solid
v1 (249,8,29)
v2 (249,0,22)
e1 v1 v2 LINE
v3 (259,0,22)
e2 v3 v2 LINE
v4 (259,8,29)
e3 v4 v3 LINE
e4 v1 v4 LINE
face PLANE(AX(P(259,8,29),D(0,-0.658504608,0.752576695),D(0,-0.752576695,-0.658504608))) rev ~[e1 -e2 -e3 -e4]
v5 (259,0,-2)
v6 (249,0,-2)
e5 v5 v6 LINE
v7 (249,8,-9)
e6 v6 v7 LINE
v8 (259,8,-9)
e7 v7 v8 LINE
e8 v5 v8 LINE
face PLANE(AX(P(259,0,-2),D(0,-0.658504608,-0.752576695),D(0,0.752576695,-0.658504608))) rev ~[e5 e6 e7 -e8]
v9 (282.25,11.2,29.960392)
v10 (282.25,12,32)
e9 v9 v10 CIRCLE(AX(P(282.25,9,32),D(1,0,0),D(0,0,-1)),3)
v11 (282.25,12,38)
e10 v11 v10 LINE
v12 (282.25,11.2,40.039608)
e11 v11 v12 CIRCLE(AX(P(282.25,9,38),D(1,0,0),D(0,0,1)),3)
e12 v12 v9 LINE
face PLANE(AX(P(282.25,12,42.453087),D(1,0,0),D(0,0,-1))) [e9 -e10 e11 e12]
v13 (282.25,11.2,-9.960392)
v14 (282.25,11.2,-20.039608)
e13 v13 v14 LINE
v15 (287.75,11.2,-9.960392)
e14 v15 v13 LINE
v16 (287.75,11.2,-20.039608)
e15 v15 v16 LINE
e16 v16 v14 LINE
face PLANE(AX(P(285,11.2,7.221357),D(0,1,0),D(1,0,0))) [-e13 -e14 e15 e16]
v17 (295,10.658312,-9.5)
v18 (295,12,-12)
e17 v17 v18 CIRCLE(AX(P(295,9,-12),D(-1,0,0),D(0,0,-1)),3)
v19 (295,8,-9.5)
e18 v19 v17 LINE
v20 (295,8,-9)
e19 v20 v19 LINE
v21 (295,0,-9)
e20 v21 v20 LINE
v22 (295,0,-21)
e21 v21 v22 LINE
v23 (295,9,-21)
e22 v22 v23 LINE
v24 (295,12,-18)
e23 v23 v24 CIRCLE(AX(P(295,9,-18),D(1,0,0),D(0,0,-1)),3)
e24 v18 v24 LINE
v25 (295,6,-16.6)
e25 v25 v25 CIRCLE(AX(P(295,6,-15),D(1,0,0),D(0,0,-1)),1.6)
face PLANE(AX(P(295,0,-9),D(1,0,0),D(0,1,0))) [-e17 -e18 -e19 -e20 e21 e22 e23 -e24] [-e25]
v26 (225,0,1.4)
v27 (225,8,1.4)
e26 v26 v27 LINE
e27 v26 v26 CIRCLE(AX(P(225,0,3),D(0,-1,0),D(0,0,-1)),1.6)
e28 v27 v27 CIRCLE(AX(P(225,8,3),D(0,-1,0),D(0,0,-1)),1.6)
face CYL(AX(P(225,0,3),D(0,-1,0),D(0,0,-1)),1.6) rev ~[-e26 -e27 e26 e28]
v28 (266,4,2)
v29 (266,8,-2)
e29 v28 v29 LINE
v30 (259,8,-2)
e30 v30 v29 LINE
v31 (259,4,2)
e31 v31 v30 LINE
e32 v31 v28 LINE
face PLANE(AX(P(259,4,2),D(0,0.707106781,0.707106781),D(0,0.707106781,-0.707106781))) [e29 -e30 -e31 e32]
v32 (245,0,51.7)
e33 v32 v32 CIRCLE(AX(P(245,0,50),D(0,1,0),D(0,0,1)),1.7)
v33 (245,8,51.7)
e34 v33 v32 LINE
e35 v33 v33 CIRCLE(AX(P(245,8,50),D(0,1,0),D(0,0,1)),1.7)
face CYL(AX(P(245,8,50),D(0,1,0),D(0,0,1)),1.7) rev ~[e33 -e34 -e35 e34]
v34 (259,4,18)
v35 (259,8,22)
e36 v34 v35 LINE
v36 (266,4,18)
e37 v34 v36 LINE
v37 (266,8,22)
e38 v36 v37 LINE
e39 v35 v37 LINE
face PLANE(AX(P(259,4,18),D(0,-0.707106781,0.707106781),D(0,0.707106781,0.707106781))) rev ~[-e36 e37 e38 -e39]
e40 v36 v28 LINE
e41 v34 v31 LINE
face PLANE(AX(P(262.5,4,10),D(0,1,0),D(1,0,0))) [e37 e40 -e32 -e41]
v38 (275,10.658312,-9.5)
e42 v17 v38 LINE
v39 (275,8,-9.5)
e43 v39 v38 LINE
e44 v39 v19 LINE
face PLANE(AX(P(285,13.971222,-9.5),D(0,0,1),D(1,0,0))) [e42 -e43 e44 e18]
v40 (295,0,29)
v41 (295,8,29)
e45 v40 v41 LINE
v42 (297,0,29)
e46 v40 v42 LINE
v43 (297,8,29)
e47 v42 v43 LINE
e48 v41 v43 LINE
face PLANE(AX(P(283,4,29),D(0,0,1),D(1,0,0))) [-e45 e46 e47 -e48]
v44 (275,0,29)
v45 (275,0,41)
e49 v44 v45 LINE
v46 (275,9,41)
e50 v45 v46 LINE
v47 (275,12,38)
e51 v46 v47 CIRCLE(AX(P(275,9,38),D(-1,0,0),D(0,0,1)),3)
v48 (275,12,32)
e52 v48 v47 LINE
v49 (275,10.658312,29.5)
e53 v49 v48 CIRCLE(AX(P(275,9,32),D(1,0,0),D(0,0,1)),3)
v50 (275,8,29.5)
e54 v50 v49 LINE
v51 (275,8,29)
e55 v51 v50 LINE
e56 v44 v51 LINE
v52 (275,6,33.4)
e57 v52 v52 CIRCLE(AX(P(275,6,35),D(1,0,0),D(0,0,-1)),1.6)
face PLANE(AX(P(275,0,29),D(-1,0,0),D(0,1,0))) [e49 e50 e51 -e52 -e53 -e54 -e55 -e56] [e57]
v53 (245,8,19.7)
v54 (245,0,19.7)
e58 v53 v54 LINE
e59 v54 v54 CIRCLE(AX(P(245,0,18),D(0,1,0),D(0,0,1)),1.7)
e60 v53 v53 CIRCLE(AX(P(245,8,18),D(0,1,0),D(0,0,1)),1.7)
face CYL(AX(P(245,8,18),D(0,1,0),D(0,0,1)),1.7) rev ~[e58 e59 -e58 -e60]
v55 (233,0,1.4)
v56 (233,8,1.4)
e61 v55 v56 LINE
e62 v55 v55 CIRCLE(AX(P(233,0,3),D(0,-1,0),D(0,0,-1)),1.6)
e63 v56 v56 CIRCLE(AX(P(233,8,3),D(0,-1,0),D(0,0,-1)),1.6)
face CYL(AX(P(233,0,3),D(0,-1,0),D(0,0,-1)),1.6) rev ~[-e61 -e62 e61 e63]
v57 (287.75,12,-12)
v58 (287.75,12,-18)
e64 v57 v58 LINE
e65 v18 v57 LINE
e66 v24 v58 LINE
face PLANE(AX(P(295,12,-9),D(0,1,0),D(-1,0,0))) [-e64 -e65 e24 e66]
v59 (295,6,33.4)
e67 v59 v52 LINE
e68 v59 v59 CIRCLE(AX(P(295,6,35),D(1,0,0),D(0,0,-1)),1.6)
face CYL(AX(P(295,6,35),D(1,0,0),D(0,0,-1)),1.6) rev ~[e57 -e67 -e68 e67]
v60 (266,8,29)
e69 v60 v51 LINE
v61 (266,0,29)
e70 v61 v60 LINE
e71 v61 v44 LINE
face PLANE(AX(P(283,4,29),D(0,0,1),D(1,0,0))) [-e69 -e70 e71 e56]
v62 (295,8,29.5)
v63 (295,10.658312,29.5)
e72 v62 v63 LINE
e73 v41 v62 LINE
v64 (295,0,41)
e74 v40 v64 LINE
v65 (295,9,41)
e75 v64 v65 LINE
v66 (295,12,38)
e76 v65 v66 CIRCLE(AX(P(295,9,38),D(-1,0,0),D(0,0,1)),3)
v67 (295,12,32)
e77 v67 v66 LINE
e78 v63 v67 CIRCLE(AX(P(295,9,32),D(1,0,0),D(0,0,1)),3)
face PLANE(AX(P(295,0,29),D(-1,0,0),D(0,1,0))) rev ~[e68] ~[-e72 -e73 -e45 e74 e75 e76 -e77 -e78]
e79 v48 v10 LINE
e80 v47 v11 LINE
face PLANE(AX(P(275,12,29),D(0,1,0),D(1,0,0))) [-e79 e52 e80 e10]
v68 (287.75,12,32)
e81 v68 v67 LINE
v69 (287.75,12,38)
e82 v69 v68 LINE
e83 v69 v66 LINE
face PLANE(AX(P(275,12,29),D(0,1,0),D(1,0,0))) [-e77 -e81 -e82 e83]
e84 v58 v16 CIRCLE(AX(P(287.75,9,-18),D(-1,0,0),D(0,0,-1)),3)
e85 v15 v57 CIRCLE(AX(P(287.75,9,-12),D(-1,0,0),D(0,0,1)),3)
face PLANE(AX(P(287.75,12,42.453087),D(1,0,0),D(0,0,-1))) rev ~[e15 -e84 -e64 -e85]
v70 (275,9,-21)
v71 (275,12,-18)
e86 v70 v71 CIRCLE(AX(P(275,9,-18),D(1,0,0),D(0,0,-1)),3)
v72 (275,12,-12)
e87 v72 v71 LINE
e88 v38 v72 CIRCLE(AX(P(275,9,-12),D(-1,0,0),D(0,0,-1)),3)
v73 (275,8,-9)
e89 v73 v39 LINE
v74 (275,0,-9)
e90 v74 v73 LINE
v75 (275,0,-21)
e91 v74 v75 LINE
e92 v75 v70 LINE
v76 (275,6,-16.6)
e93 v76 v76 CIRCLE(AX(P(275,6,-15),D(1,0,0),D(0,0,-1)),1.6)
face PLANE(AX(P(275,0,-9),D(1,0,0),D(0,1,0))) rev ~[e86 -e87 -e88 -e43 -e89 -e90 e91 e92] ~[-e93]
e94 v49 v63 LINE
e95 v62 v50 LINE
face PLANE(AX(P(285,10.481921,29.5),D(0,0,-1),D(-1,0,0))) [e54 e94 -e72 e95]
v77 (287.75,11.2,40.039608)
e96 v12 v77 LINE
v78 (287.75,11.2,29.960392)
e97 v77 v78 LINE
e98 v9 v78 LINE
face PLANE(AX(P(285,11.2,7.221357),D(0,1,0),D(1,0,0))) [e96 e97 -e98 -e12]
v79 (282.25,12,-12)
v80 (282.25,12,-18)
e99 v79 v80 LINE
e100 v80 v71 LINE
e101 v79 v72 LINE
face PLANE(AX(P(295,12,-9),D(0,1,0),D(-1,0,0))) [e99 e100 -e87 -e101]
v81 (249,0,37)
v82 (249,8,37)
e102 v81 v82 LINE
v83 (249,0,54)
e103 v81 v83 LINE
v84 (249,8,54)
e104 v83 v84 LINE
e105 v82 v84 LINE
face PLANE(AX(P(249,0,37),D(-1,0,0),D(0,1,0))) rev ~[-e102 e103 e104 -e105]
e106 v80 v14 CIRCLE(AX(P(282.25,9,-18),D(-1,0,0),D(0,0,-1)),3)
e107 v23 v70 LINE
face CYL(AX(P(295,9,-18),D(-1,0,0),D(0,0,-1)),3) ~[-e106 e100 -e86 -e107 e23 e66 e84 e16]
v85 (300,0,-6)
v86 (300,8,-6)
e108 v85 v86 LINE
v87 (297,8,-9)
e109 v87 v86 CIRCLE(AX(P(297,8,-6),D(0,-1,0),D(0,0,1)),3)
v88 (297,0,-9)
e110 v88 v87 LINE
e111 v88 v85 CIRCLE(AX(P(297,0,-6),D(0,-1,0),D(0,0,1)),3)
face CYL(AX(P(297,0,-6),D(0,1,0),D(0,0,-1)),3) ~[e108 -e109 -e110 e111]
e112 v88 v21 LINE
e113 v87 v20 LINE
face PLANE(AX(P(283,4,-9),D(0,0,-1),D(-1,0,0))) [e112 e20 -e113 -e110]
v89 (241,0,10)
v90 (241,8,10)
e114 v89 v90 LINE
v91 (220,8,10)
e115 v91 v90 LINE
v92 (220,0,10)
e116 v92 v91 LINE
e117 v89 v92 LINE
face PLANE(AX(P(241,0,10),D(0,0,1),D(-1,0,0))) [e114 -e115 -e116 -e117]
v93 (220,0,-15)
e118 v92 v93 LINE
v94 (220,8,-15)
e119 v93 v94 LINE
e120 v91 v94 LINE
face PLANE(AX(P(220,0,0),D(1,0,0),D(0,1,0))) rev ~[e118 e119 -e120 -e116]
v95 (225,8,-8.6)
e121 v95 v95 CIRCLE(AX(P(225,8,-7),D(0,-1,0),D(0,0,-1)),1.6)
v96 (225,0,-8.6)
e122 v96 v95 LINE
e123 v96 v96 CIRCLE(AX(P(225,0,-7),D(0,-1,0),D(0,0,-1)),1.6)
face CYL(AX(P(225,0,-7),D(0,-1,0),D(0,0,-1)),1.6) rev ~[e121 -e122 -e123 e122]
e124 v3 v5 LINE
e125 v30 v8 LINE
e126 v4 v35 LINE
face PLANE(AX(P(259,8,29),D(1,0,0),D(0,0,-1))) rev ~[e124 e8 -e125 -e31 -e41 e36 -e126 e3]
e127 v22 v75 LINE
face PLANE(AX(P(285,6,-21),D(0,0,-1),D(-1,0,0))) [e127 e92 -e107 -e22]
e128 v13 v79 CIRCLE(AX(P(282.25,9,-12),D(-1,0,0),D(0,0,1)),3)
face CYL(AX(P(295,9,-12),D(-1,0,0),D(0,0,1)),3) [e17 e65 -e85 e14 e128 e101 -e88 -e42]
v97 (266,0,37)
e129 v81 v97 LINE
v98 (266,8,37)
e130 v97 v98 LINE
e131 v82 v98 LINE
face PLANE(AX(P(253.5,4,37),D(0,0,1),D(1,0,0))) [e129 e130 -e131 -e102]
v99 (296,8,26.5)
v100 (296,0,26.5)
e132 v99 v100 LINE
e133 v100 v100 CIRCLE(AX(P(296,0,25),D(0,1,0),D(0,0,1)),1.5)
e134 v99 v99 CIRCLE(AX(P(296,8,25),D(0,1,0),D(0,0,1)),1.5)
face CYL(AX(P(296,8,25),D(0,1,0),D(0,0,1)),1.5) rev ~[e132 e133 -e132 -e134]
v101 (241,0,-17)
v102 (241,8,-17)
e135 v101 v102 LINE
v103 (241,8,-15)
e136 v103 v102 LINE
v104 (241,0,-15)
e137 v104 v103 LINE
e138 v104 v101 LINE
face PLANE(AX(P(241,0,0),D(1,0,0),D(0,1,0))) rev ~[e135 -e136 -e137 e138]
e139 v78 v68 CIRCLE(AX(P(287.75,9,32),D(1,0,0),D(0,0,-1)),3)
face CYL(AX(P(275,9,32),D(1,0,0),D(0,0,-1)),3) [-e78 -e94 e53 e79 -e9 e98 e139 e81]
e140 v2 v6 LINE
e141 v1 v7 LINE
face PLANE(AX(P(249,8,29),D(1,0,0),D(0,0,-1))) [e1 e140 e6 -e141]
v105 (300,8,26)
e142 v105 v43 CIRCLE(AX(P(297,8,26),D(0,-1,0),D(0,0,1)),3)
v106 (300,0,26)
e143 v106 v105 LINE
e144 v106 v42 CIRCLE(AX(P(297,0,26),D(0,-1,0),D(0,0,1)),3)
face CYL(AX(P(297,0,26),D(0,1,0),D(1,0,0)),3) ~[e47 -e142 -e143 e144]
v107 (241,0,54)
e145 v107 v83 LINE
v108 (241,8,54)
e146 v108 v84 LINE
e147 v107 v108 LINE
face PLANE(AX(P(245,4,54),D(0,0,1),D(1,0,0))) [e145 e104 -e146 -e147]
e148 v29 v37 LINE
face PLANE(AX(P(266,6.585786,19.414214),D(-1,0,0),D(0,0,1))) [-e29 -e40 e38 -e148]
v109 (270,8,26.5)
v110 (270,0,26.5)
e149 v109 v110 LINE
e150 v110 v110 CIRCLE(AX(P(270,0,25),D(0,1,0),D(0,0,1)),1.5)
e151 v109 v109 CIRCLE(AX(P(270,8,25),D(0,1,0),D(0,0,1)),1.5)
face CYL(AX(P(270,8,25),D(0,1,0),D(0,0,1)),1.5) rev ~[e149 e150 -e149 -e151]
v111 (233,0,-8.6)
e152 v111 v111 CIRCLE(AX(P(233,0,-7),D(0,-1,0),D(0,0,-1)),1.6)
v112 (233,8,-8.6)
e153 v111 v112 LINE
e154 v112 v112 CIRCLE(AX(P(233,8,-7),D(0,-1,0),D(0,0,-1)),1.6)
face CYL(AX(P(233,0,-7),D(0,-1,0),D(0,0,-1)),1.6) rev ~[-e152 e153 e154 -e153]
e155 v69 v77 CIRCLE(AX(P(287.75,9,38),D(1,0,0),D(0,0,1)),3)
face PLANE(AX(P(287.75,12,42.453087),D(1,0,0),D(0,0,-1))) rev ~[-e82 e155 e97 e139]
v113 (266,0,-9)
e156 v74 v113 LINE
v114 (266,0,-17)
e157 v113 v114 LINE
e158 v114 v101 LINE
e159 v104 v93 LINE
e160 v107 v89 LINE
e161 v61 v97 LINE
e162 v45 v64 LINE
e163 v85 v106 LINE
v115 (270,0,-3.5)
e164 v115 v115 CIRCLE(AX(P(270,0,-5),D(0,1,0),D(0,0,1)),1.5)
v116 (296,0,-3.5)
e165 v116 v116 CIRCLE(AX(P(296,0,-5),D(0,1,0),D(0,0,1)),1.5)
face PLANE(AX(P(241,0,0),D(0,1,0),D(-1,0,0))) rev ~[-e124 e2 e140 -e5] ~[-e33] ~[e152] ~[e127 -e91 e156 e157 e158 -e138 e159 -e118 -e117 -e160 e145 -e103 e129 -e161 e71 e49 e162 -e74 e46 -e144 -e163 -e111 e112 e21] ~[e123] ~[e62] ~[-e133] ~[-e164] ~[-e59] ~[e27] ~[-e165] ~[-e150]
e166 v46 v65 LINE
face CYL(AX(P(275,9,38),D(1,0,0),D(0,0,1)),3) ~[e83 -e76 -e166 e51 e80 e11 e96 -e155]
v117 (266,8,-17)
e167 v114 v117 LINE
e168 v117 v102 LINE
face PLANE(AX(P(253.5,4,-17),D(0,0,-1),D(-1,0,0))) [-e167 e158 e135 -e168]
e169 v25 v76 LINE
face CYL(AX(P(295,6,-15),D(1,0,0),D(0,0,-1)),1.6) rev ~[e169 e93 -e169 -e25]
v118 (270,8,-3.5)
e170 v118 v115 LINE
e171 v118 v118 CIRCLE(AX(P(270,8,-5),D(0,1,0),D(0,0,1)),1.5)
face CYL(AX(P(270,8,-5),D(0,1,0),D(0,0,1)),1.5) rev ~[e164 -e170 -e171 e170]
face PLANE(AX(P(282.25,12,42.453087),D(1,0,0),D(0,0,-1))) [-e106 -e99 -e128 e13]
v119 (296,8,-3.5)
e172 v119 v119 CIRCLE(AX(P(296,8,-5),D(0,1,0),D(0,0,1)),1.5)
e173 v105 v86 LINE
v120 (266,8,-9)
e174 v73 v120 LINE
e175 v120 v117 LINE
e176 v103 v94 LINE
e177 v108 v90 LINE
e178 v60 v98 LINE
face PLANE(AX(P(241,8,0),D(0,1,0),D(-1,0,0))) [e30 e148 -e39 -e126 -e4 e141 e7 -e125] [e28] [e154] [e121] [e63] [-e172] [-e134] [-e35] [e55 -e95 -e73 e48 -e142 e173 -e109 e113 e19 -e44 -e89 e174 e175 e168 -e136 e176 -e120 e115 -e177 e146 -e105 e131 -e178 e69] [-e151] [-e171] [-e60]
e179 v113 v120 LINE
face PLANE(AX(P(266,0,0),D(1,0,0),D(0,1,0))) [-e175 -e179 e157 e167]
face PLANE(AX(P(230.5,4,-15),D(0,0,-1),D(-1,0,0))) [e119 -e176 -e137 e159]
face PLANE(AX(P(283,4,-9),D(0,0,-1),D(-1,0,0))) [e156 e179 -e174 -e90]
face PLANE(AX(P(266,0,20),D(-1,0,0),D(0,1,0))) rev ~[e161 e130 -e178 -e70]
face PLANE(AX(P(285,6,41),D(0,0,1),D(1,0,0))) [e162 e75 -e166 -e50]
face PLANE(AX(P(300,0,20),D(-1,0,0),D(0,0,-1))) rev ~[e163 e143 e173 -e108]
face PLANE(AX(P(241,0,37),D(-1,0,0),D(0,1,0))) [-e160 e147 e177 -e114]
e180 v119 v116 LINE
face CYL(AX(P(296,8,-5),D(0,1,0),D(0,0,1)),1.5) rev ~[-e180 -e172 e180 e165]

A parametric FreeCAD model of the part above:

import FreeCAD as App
import Part
import Sketcher
from FreeCAD import Vector
Q = App.Units.Quantity


def edges_at(feature, points):
    """Names of the edges that pass closest to the given points."""
    edges = feature.Shape.Edges
    near = lambda p: min(range(len(edges)), key=lambda i: edges[i].distToShape(Part.Vertex(*p))[0])
    return sorted({f"Edge{near(p) + 1}" for p in points})


def add_polygon(sketch, points):
    """Adds a closed chain of lines whose ends are joined by coincident constraints."""
    first, n = sketch.GeometryCount, len(points)
    for a, b in zip(points, points[1:] + points[:1]):
        sketch.addGeometry(Part.LineSegment(App.Vector(*a, 0), App.Vector(*b, 0)), False)
    for i in range(n):
        sketch.addConstraint(Sketcher.Constraint("Coincident", first + i, 2, first + (i + 1) % n, 1))

doc = App.newDocument("Part")
body = doc.addObject("PartDesign::Body", "Body")

sketch1 = body.newObject("Sketcher::SketchObject", "Sketch")
sketch1.AttachmentSupport = (doc.getObject("XZ_Plane"), [""])
sketch1.MapMode = "FlatFace"
add_polygon(sketch1, [(0, 0), (0, 20), (300, 20), (300, 0)])
sketch1.addConstraint(Sketcher.Constraint("Vertical", 0))
sketch1.addConstraint(Sketcher.Constraint("Horizontal", 1))
sketch1.addConstraint(Sketcher.Constraint("Vertical", 2))
sketch1.addConstraint(Sketcher.Constraint("Horizontal", 3))
sketch1.addConstraint(Sketcher.Constraint("Coincident", 3, 2, -1, 1))
sketch1.addConstraint(Sketcher.Constraint("DistanceX", 1, 1, 1, 2, Q("300 mm")))
sketch1.addConstraint(Sketcher.Constraint("DistanceY", 0, 1, 0, 2, Q("20 mm")))
pad1 = body.newObject("PartDesign::Pad", "Pad")
pad1.Profile = sketch1
pad1.Length = 8
pad1.Reversed = True

sketch2 = body.newObject("Sketcher::SketchObject", "Sketch001")
sketch2.AttachmentSupport = (doc.getObject("XY_Plane"), [""])
sketch2.MapMode = "FlatFace"
sketch2.AttachmentOffset = App.Placement(Vector(0, 0, 20), App.Rotation())
add_polygon(sketch2, [(0, 8), (0, 0), (34, 0), (34, 8)])
add_polygon(sketch2, [(266, 8), (266, 0), (300, 0), (300, 8)])
sketch2.addConstraint(Sketcher.Constraint("Vertical", 0))
sketch2.addConstraint(Sketcher.Constraint("Horizontal", 1))
sketch2.addConstraint(Sketcher.Constraint("Vertical", 2))
sketch2.addConstraint(Sketcher.Constraint("Horizontal", 3))
sketch2.addConstraint(Sketcher.Constraint("Vertical", 4))
sketch2.addConstraint(Sketcher.Constraint("Horizontal", 5))
sketch2.addConstraint(Sketcher.Constraint("Vertical", 6))
sketch2.addConstraint(Sketcher.Constraint("Horizontal", 7))
sketch2.addConstraint(Sketcher.Constraint("Coincident", 0, 2, -1, 1))
sketch2.addConstraint(Sketcher.Constraint("PointOnObject", 4, 2, -1))
sketch2.addConstraint(Sketcher.Constraint("Horizontal", 3, 2, 6, 2))
sketch2.addConstraint(Sketcher.Constraint("Equal", 3, 5))
sketch2.addConstraint(Sketcher.Constraint("DistanceX", 1, 1, 1, 2, Q("34 mm")))
sketch2.addConstraint(Sketcher.Constraint("DistanceY", 0, 2, 0, 1, Q("8 mm")))
sketch2.addConstraint(Sketcher.Constraint("DistanceX", -1, 1, 4, 2, Q("266 mm")))
pad2 = body.newObject("PartDesign::Pad", "Pad001")
pad2.Profile = sketch2
pad2.Length = 9

sketch3 = body.newObject("Sketcher::SketchObject", "Sketch002")
sketch3.AttachmentSupport = (doc.getObject("XY_Plane"), [""])
sketch3.MapMode = "FlatFace"
add_polygon(sketch3, [(34, 8), (34, 0), (0, 0), (0, 8)])
add_polygon(sketch3, [(300, 8), (300, 0), (266, 0), (266, 8)])
sketch3.addConstraint(Sketcher.Constraint("Vertical", 0))
sketch3.addConstraint(Sketcher.Constraint("Horizontal", 1))
sketch3.addConstraint(Sketcher.Constraint("Vertical", 2))
sketch3.addConstraint(Sketcher.Constraint("Horizontal", 3))
sketch3.addConstraint(Sketcher.Constraint("Vertical", 4))
sketch3.addConstraint(Sketcher.Constraint("Horizontal", 5))
sketch3.addConstraint(Sketcher.Constraint("Vertical", 6))
sketch3.addConstraint(Sketcher.Constraint("Horizontal", 7))
sketch3.addConstraint(Sketcher.Constraint("Coincident", 1, 2, -1, 1))
sketch3.addConstraint(Sketcher.Constraint("PointOnObject", 4, 2, -1))
sketch3.addConstraint(Sketcher.Constraint("Horizontal", 3, 2, 6, 2))
sketch3.addConstraint(Sketcher.Constraint("Equal", 3, 5))
sketch3.addConstraint(Sketcher.Constraint("DistanceX", 1, 2, 1, 1, Q("34 mm")))
sketch3.addConstraint(Sketcher.Constraint("DistanceY", 0, 2, 0, 1, Q("8 mm")))
sketch3.addConstraint(Sketcher.Constraint("DistanceX", -1, 1, 4, 2, Q("300 mm")))
pad3 = body.newObject("PartDesign::Pad", "Pad002")
pad3.Profile = sketch3
pad3.Length = 9
pad3.Reversed = True

sketch4 = body.newObject("Sketcher::SketchObject", "Sketch003")
sketch4.AttachmentSupport = (doc.getObject("XZ_Plane"), [""])
sketch4.MapMode = "FlatFace"
sketch4.AttachmentOffset = App.Placement(Vector(0, 0, -8), App.Rotation())
sketch4.addGeometry(Part.Circle(Vector(4, -5, 0), Vector(0, 0, 1), 1.5), False)
sketch4.addGeometry(Part.Circle(Vector(30, -5, 0), Vector(0, 0, 1), 1.5), False)
sketch4.addGeometry(Part.Circle(Vector(30, 25, 0), Vector(0, 0, 1), 1.5), False)
sketch4.addGeometry(Part.Circle(Vector(4, 25, 0), Vector(0, 0, 1), 1.5), False)
sketch4.addGeometry(Part.Circle(Vector(296, 25, 0), Vector(0, 0, 1), 1.5), False)
sketch4.addGeometry(Part.Circle(Vector(296, -5, 0), Vector(0, 0, 1), 1.5), False)
sketch4.addGeometry(Part.Circle(Vector(270, 25, 0), Vector(0, 0, 1), 1.5), False)
sketch4.addGeometry(Part.Circle(Vector(270, -5, 0), Vector(0, 0, 1), 1.5), False)
sketch4.addConstraint(Sketcher.Constraint("Equal", 0, 1))
sketch4.addConstraint(Sketcher.Constraint("Equal", 1, 2))
sketch4.addConstraint(Sketcher.Constraint("Equal", 2, 3))
sketch4.addConstraint(Sketcher.Constraint("Equal", 3, 4))
sketch4.addConstraint(Sketcher.Constraint("Equal", 4, 5))
sketch4.addConstraint(Sketcher.Constraint("Equal", 5, 6))
sketch4.addConstraint(Sketcher.Constraint("Equal", 6, 7))
sketch4.addConstraint(Sketcher.Constraint("Horizontal", 0, 3, 1, 3))
sketch4.addConstraint(Sketcher.Constraint("Horizontal", 2, 3, 3, 3))
sketch4.addConstraint(Sketcher.Constraint("Horizontal", 3, 3, 4, 3))
sketch4.addConstraint(Sketcher.Constraint("Horizontal", 1, 3, 5, 3))
sketch4.addConstraint(Sketcher.Constraint("Horizontal", 4, 3, 6, 3))
sketch4.addConstraint(Sketcher.Constraint("Horizontal", 5, 3, 7, 3))
sketch4.addConstraint(Sketcher.Constraint("Vertical", 1, 3, 2, 3))
sketch4.addConstraint(Sketcher.Constraint("Vertical", 0, 3, 3, 3))
sketch4.addConstraint(Sketcher.Constraint("Vertical", 4, 3, 5, 3))
sketch4.addConstraint(Sketcher.Constraint("Vertical", 6, 3, 7, 3))
sketch4.addConstraint(Sketcher.Constraint("Diameter", 0, Q("3 mm")))
sketch4.addConstraint(Sketcher.Constraint("DistanceX", -1, 1, 0, 3, Q("4 mm")))
sketch4.addConstraint(Sketcher.Constraint("DistanceY", 0, 3, -1, 1, Q("5 mm")))
sketch4.addConstraint(Sketcher.Constraint("DistanceX", -1, 1, 1, 3, Q("30 mm")))
sketch4.addConstraint(Sketcher.Constraint("DistanceY", -1, 1, 2, 3, Q("25 mm")))
sketch4.addConstraint(Sketcher.Constraint("DistanceX", -1, 1, 4, 3, Q("296 mm")))
sketch4.addConstraint(Sketcher.Constraint("DistanceX", -1, 1, 6, 3, Q("270 mm")))
pocket1 = body.newObject("PartDesign::Pocket", "Pocket")
pocket1.Profile = sketch4
pocket1.Type = "ThroughAll"
pocket1.Reversed = True

sketch5 = body.newObject("Sketcher::SketchObject", "Sketch004")
sketch5.AttachmentSupport = (doc.getObject("XY_Plane"), [""])
sketch5.MapMode = "FlatFace"
sketch5.AttachmentOffset = App.Placement(Vector(0, 0, 20), App.Rotation())
add_polygon(sketch5, [(241, 8), (241, 0), (266, 0), (266, 8)])
sketch5.addConstraint(Sketcher.Constraint("Vertical", 0))
sketch5.addConstraint(Sketcher.Constraint("Horizontal", 1))
sketch5.addConstraint(Sketcher.Constraint("Vertical", 2))
sketch5.addConstraint(Sketcher.Constraint("Horizontal", 3))
sketch5.addConstraint(Sketcher.Constraint("PointOnObject", 0, 2, -1))
sketch5.addConstraint(Sketcher.Constraint("DistanceX", 1, 1, 1, 2, Q("25 mm")))
sketch5.addConstraint(Sketcher.Constraint("DistanceY", 0, 2, 0, 1, Q("8 mm")))
sketch5.addConstraint(Sketcher.Constraint("DistanceX", -1, 1, 0, 2, Q("241 mm")))
pad4 = body.newObject("PartDesign::Pad", "Pad003")
pad4.Profile = sketch5
pad4.Length = 17

sketch6 = body.newObject("Sketcher::SketchObject", "Sketch005")
sketch6.AttachmentSupport = (doc.getObject("XY_Plane"), [""])
sketch6.MapMode = "FlatFace"
add_polygon(sketch6, [(266, 8), (266, 0), (241, 0), (241, 8)])
sketch6.addConstraint(Sketcher.Constraint("Vertical", 0))
sketch6.addConstraint(Sketcher.Constraint("Horizontal", 1))
sketch6.addConstraint(Sketcher.Constraint("Vertical", 2))
sketch6.addConstraint(Sketcher.Constraint("Horizontal", 3))
sketch6.addConstraint(Sketcher.Constraint("PointOnObject", 0, 2, -1))
sketch6.addConstraint(Sketcher.Constraint("DistanceX", 1, 2, 1, 1, Q("25 mm")))
sketch6.addConstraint(Sketcher.Constraint("DistanceY", 0, 2, 0, 1, Q("8 mm")))
sketch6.addConstraint(Sketcher.Constraint("DistanceX", -1, 1, 0, 2, Q("266 mm")))
pad5 = body.newObject("PartDesign::Pad", "Pad004")
pad5.Profile = sketch6
pad5.Length = 17
pad5.Reversed = True

sketch7 = body.newObject("Sketcher::SketchObject", "Sketch006")
sketch7.AttachmentSupport = (doc.getObject("XZ_Plane"), [""])
sketch7.MapMode = "FlatFace"
sketch7.AttachmentOffset = App.Placement(Vector(0, 0, -8), App.Rotation())
add_polygon(sketch7, [(249, -9), (249, 29), (259, 29), (259, -9)])
sketch7.addConstraint(Sketcher.Constraint("Vertical", 0))
sketch7.addConstraint(Sketcher.Constraint("Horizontal", 1))
sketch7.addConstraint(Sketcher.Constraint("Vertical", 2))
sketch7.addConstraint(Sketcher.Constraint("Horizontal", 3))
sketch7.addConstraint(Sketcher.Constraint("DistanceX", 1, 1, 1, 2, Q("10 mm")))
sketch7.addConstraint(Sketcher.Constraint("DistanceY", 0, 1, 0, 2, Q("38 mm")))
sketch7.addConstraint(Sketcher.Constraint("DistanceX", -1, 1, 0, 2, Q("249 mm")))
sketch7.addConstraint(Sketcher.Constraint("DistanceY", -1, 1, 0, 2, Q("29 mm")))
pocket2 = body.newObject("PartDesign::Pocket", "Pocket001")
pocket2.Profile = sketch7
pocket2.Type = "ThroughAll"
pocket2.Reversed = True

sketch8 = body.newObject("Sketcher::SketchObject", "Sketch007")
sketch8.AttachmentSupport = (doc.getObject("XZ_Plane"), [""])
sketch8.MapMode = "FlatFace"
sketch8.AttachmentOffset = App.Placement(Vector(0, 0, -8), App.Rotation())
add_polygon(sketch8, [(259, 2), (259, 18), (266, 18), (266, 2)])
sketch8.addConstraint(Sketcher.Constraint("Vertical", 0))
sketch8.addConstraint(Sketcher.Constraint("Horizontal", 1))
sketch8.addConstraint(Sketcher.Constraint("Vertical", 2))
sketch8.addConstraint(Sketcher.Constraint("Horizontal", 3))
sketch8.addConstraint(Sketcher.Constraint("DistanceX", 1, 1, 1, 2, Q("7 mm")))
sketch8.addConstraint(Sketcher.Constraint("DistanceY", 0, 1, 0, 2, Q("16 mm")))
sketch8.addConstraint(Sketcher.Constraint("DistanceX", -1, 1, 0, 2, Q("259 mm")))
sketch8.addConstraint(Sketcher.Constraint("DistanceY", -1, 1, 0, 2, Q("18 mm")))
pocket3 = body.newObject("PartDesign::Pocket", "Pocket002")
pocket3.Profile = sketch8
pocket3.Length = 4
pocket3.Reversed = True

sketch9 = body.newObject("Sketcher::SketchObject", "Sketch008")
sketch9.AttachmentSupport = (doc.getObject("YZ_Plane"), [""])
sketch9.MapMode = "FlatFace"
sketch9.AttachmentOffset = App.Placement(Vector(0, 0, 259), App.Rotation())
add_polygon(sketch9, [(4, 18), (8, 22), (8, 18)])
add_polygon(sketch9, [(8, -2), (4, 2), (8, 2)])
sketch9.addConstraint(Sketcher.Constraint("Vertical", 1))
sketch9.addConstraint(Sketcher.Constraint("Horizontal", 2))
sketch9.addConstraint(Sketcher.Constraint("Horizontal", 4))
sketch9.addConstraint(Sketcher.Constraint("Vertical", 5))
sketch9.addConstraint(Sketcher.Constraint("Perpendicular", 0, 3))
sketch9.addConstraint(Sketcher.Constraint("Vertical", 2, 2, 3, 2))
sketch9.addConstraint(Sketcher.Constraint("Vertical", 1, 2, 4, 2))
sketch9.addConstraint(Sketcher.Constraint("Equal", 4, 1))
sketch9.addConstraint(Sketcher.Constraint("DistanceX", 2, 2, 2, 1, Q("4 mm")))
sketch9.addConstraint(Sketcher.Constraint("DistanceX", -1, 1, 0, 2, Q("8 mm")))
sketch9.addConstraint(Sketcher.Constraint("DistanceY", -1, 1, 0, 2, Q("22 mm")))
sketch9.addConstraint(Sketcher.Constraint("DistanceY", -1, 1, 3, 2, Q("2 mm")))
pocket4 = body.newObject("PartDesign::Pocket", "Pocket003")
pocket4.Profile = sketch9
pocket4.Length = 7
pocket4.Reversed = True

sketch10 = body.newObject("Sketcher::SketchObject", "Sketch009")
sketch10.AttachmentSupport = (doc.getObject("YZ_Plane"), [""])
sketch10.MapMode = "FlatFace"
sketch10.AttachmentOffset = App.Placement(Vector(0, 0, 259), App.Rotation())
add_polygon(sketch10, [(0, -2), (8, -9), (0, -9)])
add_polygon(sketch10, [(8, 29), (0, 22), (0, 29)])
sketch10.addConstraint(Sketcher.Constraint("Horizontal", 1))
sketch10.addConstraint(Sketcher.Constraint("Vertical", 2))
sketch10.addConstraint(Sketcher.Constraint("Vertical", 4))
sketch10.addConstraint(Sketcher.Constraint("Horizontal", 5))
sketch10.addConstraint(Sketcher.Constraint("PointOnObject", 1, 2, -2))
sketch10.addConstraint(Sketcher.Constraint("PointOnObject", 3, 2, -2))
sketch10.addConstraint(Sketcher.Constraint("Vertical", 0, 2, 5, 2))
sketch10.addConstraint(Sketcher.Constraint("Equal", 2, 4))
sketch10.addConstraint(Sketcher.Constraint("DistanceX", 1, 2, 1, 1, Q("8 mm")))
sketch10.addConstraint(Sketcher.Constraint("DistanceY", 2, 1, 2, 2, Q("7 mm")))
sketch10.addConstraint(Sketcher.Constraint("DistanceY", 0, 2, -1, 1, Q("9 mm")))
sketch10.addConstraint(Sketcher.Constraint("DistanceY", -1, 1, 3, 2, Q("22 mm")))
pad6 = body.newObject("PartDesign::Pad", "Pad005")
pad6.Profile = sketch10
pad6.Length = 10
pad6.Reversed = True

sketch11 = body.newObject("Sketcher::SketchObject", "Sketch010")
sketch11.AttachmentSupport = (doc.getObject("XY_Plane"), [""])
sketch11.MapMode = "FlatFace"
sketch11.AttachmentOffset = App.Placement(Vector(0, 0, 37), App.Rotation())
add_polygon(sketch11, [(241, 8), (241, 0), (249, 0), (249, 8)])
sketch11.addConstraint(Sketcher.Constraint("Vertical", 0))
sketch11.addConstraint(Sketcher.Constraint("Horizontal", 1))
sketch11.addConstraint(Sketcher.Constraint("Vertical", 2))
sketch11.addConstraint(Sketcher.Constraint("Horizontal", 3))
sketch11.addConstraint(Sketcher.Constraint("PointOnObject", 0, 2, -1))
sketch11.addConstraint(Sketcher.Constraint("Equal", 3, 0))
sketch11.addConstraint(Sketcher.Constraint("DistanceX", 1, 1, 1, 2, Q("8 mm")))
sketch11.addConstraint(Sketcher.Constraint("DistanceX", -1, 1, 0, 2, Q("241 mm")))
pad7 = body.newObject("PartDesign::Pad", "Pad006")
pad7.Profile = sketch11
pad7.Length = 17

sketch12 = body.newObject("Sketcher::SketchObject", "Sketch011")
sketch12.AttachmentSupport = (doc.getObject("XZ_Plane"), [""])
sketch12.MapMode = "FlatFace"
sketch12.AttachmentOffset = App.Placement(Vector(0, 0, -8), App.Rotation())
sketch12.addGeometry(Part.Circle(Vector(245, 50, 0), Vector(0, 0, 1), 1.7), False)
sketch12.addGeometry(Part.Circle(Vector(245, 18, 0), Vector(0, 0, 1), 1.7), False)
sketch12.addConstraint(Sketcher.Constraint("Equal", 0, 1))
sketch12.addConstraint(Sketcher.Constraint("Vertical", 0, 3, 1, 3))
sketch12.addConstraint(Sketcher.Constraint("Diameter", 0, Q("3.4 mm")))
sketch12.addConstraint(Sketcher.Constraint("DistanceX", -1, 1, 0, 3, Q("245 mm")))
sketch12.addConstraint(Sketcher.Constraint("DistanceY", -1, 1, 0, 3, Q("50 mm")))
sketch12.addConstraint(Sketcher.Constraint("DistanceY", -1, 1, 1, 3, Q("18 mm")))
pocket5 = body.newObject("PartDesign::Pocket", "Pocket004")
pocket5.Profile = sketch12
pocket5.Type = "ThroughAll"
pocket5.Reversed = True

sketch13 = body.newObject("Sketcher::SketchObject", "Sketch012")
sketch13.AttachmentSupport = (doc.getObject("XY_Plane"), [""])
sketch13.MapMode = "FlatFace"
sketch13.AttachmentOffset = App.Placement(Vector(0, 0, 29), App.Rotation())
add_polygon(sketch13, [(275, 12), (275, 0), (295, 0), (295, 12)])
sketch13.addConstraint(Sketcher.Constraint("Vertical", 0))
sketch13.addConstraint(Sketcher.Constraint("Horizontal", 1))
sketch13.addConstraint(Sketcher.Constraint("Vertical", 2))
sketch13.addConstraint(Sketcher.Constraint("Horizontal", 3))
sketch13.addConstraint(Sketcher.Constraint("PointOnObject", 0, 2, -1))
sketch13.addConstraint(Sketcher.Constraint("DistanceX", 1, 1, 1, 2, Q("20 mm")))
sketch13.addConstraint(Sketcher.Constraint("DistanceY", 0, 2, 0, 1, Q("12 mm")))
sketch13.addConstraint(Sketcher.Constraint("DistanceX", -1, 1, 0, 2, Q("275 mm")))
pad8 = body.newObject("PartDesign::Pad", "Pad007")
pad8.Profile = sketch13
pad8.Length = 12

sketch14 = body.newObject("Sketcher::SketchObject", "Sketch013")
sketch14.AttachmentSupport = (doc.getObject("YZ_Plane"), [""])
sketch14.MapMode = "FlatFace"
sketch14.AttachmentOffset = App.Placement(Vector(0, 0, 295), App.Rotation())
sketch14.addGeometry(Part.Circle(Vector(6, 35, 0), Vector(0, 0, 1), 1.6), False)
sketch14.addConstraint(Sketcher.Constraint("Diameter", 0, Q("3.2 mm")))
sketch14.addConstraint(Sketcher.Constraint("DistanceX", -1, 1, 0, 3, Q("6 mm")))
sketch14.addConstraint(Sketcher.Constraint("DistanceY", -1, 1, 0, 3, Q("35 mm")))
pocket6 = body.newObject("PartDesign::Pocket", "Pocket005")
pocket6.Profile = sketch14
pocket6.Length = 20

sketch15 = body.newObject("Sketcher::SketchObject", "Sketch014")
sketch15.AttachmentSupport = (doc.getObject("XY_Plane"), [""])
sketch15.MapMode = "FlatFace"
sketch15.AttachmentOffset = App.Placement(Vector(0, 0, -9), App.Rotation())
add_polygon(sketch15, [(295, 12), (295, 0), (275, 0), (275, 12)])
sketch15.addConstraint(Sketcher.Constraint("Vertical", 0))
sketch15.addConstraint(Sketcher.Constraint("Horizontal", 1))
sketch15.addConstraint(Sketcher.Constraint("Vertical", 2))
sketch15.addConstraint(Sketcher.Constraint("Horizontal", 3))
sketch15.addConstraint(Sketcher.Constraint("PointOnObject", 0, 2, -1))
sketch15.addConstraint(Sketcher.Constraint("DistanceX", 1, 2, 1, 1, Q("20 mm")))
sketch15.addConstraint(Sketcher.Constraint("DistanceY", 0, 2, 0, 1, Q("12 mm")))
sketch15.addConstraint(Sketcher.Constraint("DistanceX", -1, 1, 0, 2, Q("295 mm")))
pad9 = body.newObject("PartDesign::Pad", "Pad008")
pad9.Profile = sketch15
pad9.Length = 12
pad9.Reversed = True

sketch16 = body.newObject("Sketcher::SketchObject", "Sketch015")
sketch16.AttachmentSupport = (doc.getObject("YZ_Plane"), [""])
sketch16.MapMode = "FlatFace"
sketch16.AttachmentOffset = App.Placement(Vector(0, 0, 295), App.Rotation())
sketch16.addGeometry(Part.Circle(Vector(6, -15, 0), Vector(0, 0, 1), 1.6), False)
sketch16.addConstraint(Sketcher.Constraint("Diameter", 0, Q("3.2 mm")))
sketch16.addConstraint(Sketcher.Constraint("DistanceX", -1, 1, 0, 3, Q("6 mm")))
sketch16.addConstraint(Sketcher.Constraint("DistanceY", 0, 3, -1, 1, Q("15 mm")))
pocket7 = body.newObject("PartDesign::Pocket", "Pocket006")
pocket7.Profile = sketch16
pocket7.Length = 20

sketch17 = body.newObject("Sketcher::SketchObject", "Sketch016")
sketch17.AttachmentSupport = (doc.getObject("XY_Plane"), [""])
sketch17.MapMode = "FlatFace"
sketch17.AttachmentOffset = App.Placement(Vector(0, 0, -9), App.Rotation())
add_polygon(sketch17, [(25, 13), (25, 0), (5, 0), (5, 13)])
sketch17.addConstraint(Sketcher.Constraint("Vertical", 0))
sketch17.addConstraint(Sketcher.Constraint("Horizontal", 1))
sketch17.addConstraint(Sketcher.Constraint("Vertical", 2))
sketch17.addConstraint(Sketcher.Constraint("Horizontal", 3))
sketch17.addConstraint(Sketcher.Constraint("PointOnObject", 0, 2, -1))
sketch17.addConstraint(Sketcher.Constraint("DistanceX", 1, 2, 1, 1, Q("20 mm")))
sketch17.addConstraint(Sketcher.Constraint("DistanceY", 0, 2, 0, 1, Q("13 mm")))
sketch17.addConstraint(Sketcher.Constraint("DistanceX", -1, 1, 0, 2, Q("25 mm")))
pad10 = body.newObject("PartDesign::Pad", "Pad009")
pad10.Profile = sketch17
pad10.Length = 12
pad10.Reversed = True

sketch18 = body.newObject("Sketcher::SketchObject", "Sketch017")
sketch18.AttachmentSupport = (doc.getObject("YZ_Plane"), [""])
sketch18.MapMode = "FlatFace"
sketch18.AttachmentOffset = App.Placement(Vector(0, 0, 5), App.Rotation())
sketch18.addGeometry(Part.Circle(Vector(8, -15, 0), Vector(0, 0, 1), 1.6), False)
sketch18.addConstraint(Sketcher.Constraint("Diameter", 0, Q("3.2 mm")))
sketch18.addConstraint(Sketcher.Constraint("DistanceX", -1, 1, 0, 3, Q("8 mm")))
sketch18.addConstraint(Sketcher.Constraint("DistanceY", 0, 3, -1, 1, Q("15 mm")))
pocket8 = body.newObject("PartDesign::Pocket", "Pocket007")
pocket8.Profile = sketch18
pocket8.Length = 20
pocket8.Reversed = True

sketch19 = body.newObject("Sketcher::SketchObject", "Sketch018")
sketch19.AttachmentSupport = (doc.getObject("XY_Plane"), [""])
sketch19.MapMode = "FlatFace"
sketch19.AttachmentOffset = App.Placement(Vector(0, 0, 29), App.Rotation())
add_polygon(sketch19, [(5, 13), (5, 0), (25, 0), (25, 13)])
sketch19.addConstraint(Sketcher.Constraint("Vertical", 0))
sketch19.addConstraint(Sketcher.Constraint("Horizontal", 1))
sketch19.addConstraint(Sketcher.Constraint("Vertical", 2))
sketch19.addConstraint(Sketcher.Constraint("Horizontal", 3))
sketch19.addConstraint(Sketcher.Constraint("PointOnObject", 0, 2, -1))
sketch19.addConstraint(Sketcher.Constraint("DistanceX", 1, 1, 1, 2, Q("20 mm")))
sketch19.addConstraint(Sketcher.Constraint("DistanceY", 0, 2, 0, 1, Q("13 mm")))
sketch19.addConstraint(Sketcher.Constraint("DistanceX", -1, 1, 0, 2, Q("5 mm")))
pad11 = body.newObject("PartDesign::Pad", "Pad010")
pad11.Profile = sketch19
pad11.Length = 12

sketch20 = body.newObject("Sketcher::SketchObject", "Sketch019")
sketch20.AttachmentSupport = (doc.getObject("YZ_Plane"), [""])
sketch20.MapMode = "FlatFace"
sketch20.AttachmentOffset = App.Placement(Vector(0, 0, 5), App.Rotation())
sketch20.addGeometry(Part.Circle(Vector(8, 35, 0), Vector(0, 0, 1), 1.6), False)
sketch20.addConstraint(Sketcher.Constraint("Diameter", 0, Q("3.2 mm")))
sketch20.addConstraint(Sketcher.Constraint("DistanceX", -1, 1, 0, 3, Q("8 mm")))
sketch20.addConstraint(Sketcher.Constraint("DistanceY", -1, 1, 0, 3, Q("35 mm")))
pocket9 = body.newObject("PartDesign::Pocket", "Pocket008")
pocket9.Profile = sketch20
pocket9.Length = 20
pocket9.Reversed = True
doc.recompute()

fillet = body.newObject("PartDesign::Fillet", "Fillet")
fillet.Base = (pocket9, edges_at(pocket9, [
    (285, 12, 29),
    (285, 12, 41),
    (285, 12, -9),
    (285, 12, -21),
    (15, 13, -9),
    (15, 13, -21),
    (15, 13, 29),
    (15, 13, 41),
]))
fillet.Radius = 3

sketch21 = body.newObject("Sketcher::SketchObject", "Sketch020")
sketch21.AttachmentSupport = (doc.getObject("YZ_Plane"), [""])
sketch21.MapMode = "FlatFace"
add_polygon(sketch21, [(217.69335, -119.936151), (-338.661754, -119.936151), (-338.661754, 78.945285), (217.69335, 78.945285)])
sketch21.addConstraint(Sketcher.Constraint("Horizontal", 0))
sketch21.addConstraint(Sketcher.Constraint("Vertical", 1))
sketch21.addConstraint(Sketcher.Constraint("Horizontal", 2))
sketch21.addConstraint(Sketcher.Constraint("Vertical", 3))
sketch21.addConstraint(Sketcher.Constraint("DistanceX", 0, 2, 0, 1, Q("556.355104 mm")))
sketch21.addConstraint(Sketcher.Constraint("DistanceY", 1, 1, 1, 2, Q("198.881436 mm")))
sketch21.addConstraint(Sketcher.Constraint("DistanceY", 0, 2, -1, 1, Q("119.936151 mm")))
sketch21.addConstraint(Sketcher.Constraint("DistanceX", -1, 1, 2, 2, Q("217.69335 mm")))
pocket10 = body.newObject("PartDesign::Pocket", "Pocket009")
pocket10.Profile = sketch21
pocket10.Length = 220
pocket10.Reversed = True

sketch22 = body.newObject("Sketcher::SketchObject", "Sketch021")
sketch22.AttachmentSupport = (doc.getObject("XY_Plane"), [""])
sketch22.MapMode = "FlatFace"
add_polygon(sketch22, [(241, 8), (241, 0), (220, 0), (220, 8)])
sketch22.addConstraint(Sketcher.Constraint("Vertical", 0))
sketch22.addConstraint(Sketcher.Constraint("Horizontal", 1))
sketch22.addConstraint(Sketcher.Constraint("Vertical", 2))
sketch22.addConstraint(Sketcher.Constraint("Horizontal", 3))
sketch22.addConstraint(Sketcher.Constraint("PointOnObject", 0, 2, -1))
sketch22.addConstraint(Sketcher.Constraint("DistanceX", 1, 2, 1, 1, Q("21 mm")))
sketch22.addConstraint(Sketcher.Constraint("DistanceY", 0, 2, 0, 1, Q("8 mm")))
sketch22.addConstraint(Sketcher.Constraint("DistanceX", -1, 1, 0, 2, Q("241 mm")))
pad12 = body.newObject("PartDesign::Pad", "Pad011")
pad12.Profile = sketch22
pad12.Length = 15
pad12.Reversed = True

sketch23 = body.newObject("Sketcher::SketchObject", "Sketch022")
sketch23.AttachmentSupport = (doc.getObject("XZ_Plane"), [""])
sketch23.MapMode = "FlatFace"
add_polygon(sketch23, [(241, 10), (241, 20), (220, 20), (220, 10)])
sketch23.addConstraint(Sketcher.Constraint("Vertical", 0))
sketch23.addConstraint(Sketcher.Constraint("Horizontal", 1))
sketch23.addConstraint(Sketcher.Constraint("Vertical", 2))
sketch23.addConstraint(Sketcher.Constraint("Horizontal", 3))
sketch23.addConstraint(Sketcher.Constraint("DistanceX", 1, 2, 1, 1, Q("21 mm")))
sketch23.addConstraint(Sketcher.Constraint("DistanceY", 0, 1, 0, 2, Q("10 mm")))
sketch23.addConstraint(Sketcher.Constraint("DistanceX", -1, 1, 0, 2, Q("241 mm")))
sketch23.addConstraint(Sketcher.Constraint("DistanceY", -1, 1, 0, 2, Q("20 mm")))
pocket11 = body.newObject("PartDesign::Pocket", "Pocket010")
pocket11.Profile = sketch23
pocket11.Type = "ThroughAll"

sketch24 = body.newObject("Sketcher::SketchObject", "Sketch023")
sketch24.AttachmentSupport = (doc.getObject("XZ_Plane"), [""])
sketch24.MapMode = "FlatFace"
sketch24.addGeometry(Part.Circle(Vector(225, -7, 0), Vector(0, 0, 1), 1.6), False)
sketch24.addGeometry(Part.Circle(Vector(225, 3, 0), Vector(0, 0, 1), 1.6), False)
sketch24.addGeometry(Part.Circle(Vector(233, -7, 0), Vector(0, 0, 1), 1.6), False)
sketch24.addGeometry(Part.Circle(Vector(233, 3, 0), Vector(0, 0, 1), 1.6), False)
sketch24.addConstraint(Sketcher.Constraint("Equal", 0, 1))
sketch24.addConstraint(Sketcher.Constraint("Equal", 1, 2))
sketch24.addConstraint(Sketcher.Constraint("Equal", 2, 3))
sketch24.addConstraint(Sketcher.Constraint("Horizontal", 0, 3, 2, 3))
sketch24.addConstraint(Sketcher.Constraint("Horizontal", 1, 3, 3, 3))
sketch24.addConstraint(Sketcher.Constraint("Vertical", 0, 3, 1, 3))
sketch24.addConstraint(Sketcher.Constraint("Vertical", 2, 3, 3, 3))
sketch24.addConstraint(Sketcher.Constraint("Diameter", 0, Q("3.2 mm")))
sketch24.addConstraint(Sketcher.Constraint("DistanceX", -1, 1, 0, 3, Q("225 mm")))
sketch24.addConstraint(Sketcher.Constraint("DistanceY", 0, 3, -1, 1, Q("7 mm")))
sketch24.addConstraint(Sketcher.Constraint("DistanceY", -1, 1, 1, 3, Q("3 mm")))
sketch24.addConstraint(Sketcher.Constraint("DistanceX", -1, 1, 2, 3, Q("233 mm")))
pocket12 = body.newObject("PartDesign::Pocket", "Pocket011")
pocket12.Profile = sketch24
pocket12.Type = "ThroughAll"
doc.recompute()

fillet2 = body.newObject("PartDesign::Fillet", "Fillet001")
fillet2.Base = (pocket12, edges_at(pocket12, [(300, 4, 29), (300, 4, -9)]))
fillet2.Radius = 3

sketch25 = body.newObject("Sketcher::SketchObject", "Sketch024")
sketch25.AttachmentSupport = (doc.getObject("XZ_Plane"), [""])
sketch25.MapMode = "FlatFace"
sketch25.AttachmentOffset = App.Placement(Vector(0, 0, -12), App.Rotation())
add_polygon(sketch25, [(282.25, -28.010373), (282.25, 42.453087), (287.75, 42.453087), (287.75, -28.010373)])
sketch25.addConstraint(Sketcher.Constraint("Vertical", 0))
sketch25.addConstraint(Sketcher.Constraint("Horizontal", 1))
sketch25.addConstraint(Sketcher.Constraint("Vertical", 2))
sketch25.addConstraint(Sketcher.Constraint("Horizontal", 3))
sketch25.addConstraint(Sketcher.Constraint("DistanceX", 1, 1, 1, 2, Q("5.5 mm")))
sketch25.addConstraint(Sketcher.Constraint("DistanceX", -1, 1, 0, 2, Q("282.25 mm")))
sketch25.addConstraint(Sketcher.Constraint("DistanceY", 0, 1, 0, 2, Q("70.46346 mm")))
sketch25.addConstraint(Sketcher.Constraint("DistanceY", -1, 1, 0, 2, Q("42.453087 mm")))
pocket13 = body.newObject("PartDesign::Pocket", "Pocket012")
pocket13.Profile = sketch25
pocket13.Length = 0.8
pocket13.Reversed = True

sketch26 = body.newObject("Sketcher::SketchObject", "Sketch025")
sketch26.AttachmentSupport = (doc.getObject("XY_Plane"), [""])
sketch26.MapMode = "FlatFace"
sketch26.AttachmentOffset = App.Placement(Vector(0, 0, 29), App.Rotation())
add_polygon(sketch26, [(295, 12.963842), (295, 8), (275, 8), (275, 12.963842)])
sketch26.addConstraint(Sketcher.Constraint("Vertical", 0))
sketch26.addConstraint(Sketcher.Constraint("Horizontal", 1))
sketch26.addConstraint(Sketcher.Constraint("Vertical", 2))
sketch26.addConstraint(Sketcher.Constraint("Horizontal", 3))
sketch26.addConstraint(Sketcher.Constraint("DistanceX", 1, 2, 1, 1, Q("20 mm")))
sketch26.addConstraint(Sketcher.Constraint("DistanceX", -1, 1, 0, 2, Q("295 mm")))
sketch26.addConstraint(Sketcher.Constraint("DistanceY", -1, 1, 0, 2, Q("8 mm")))
sketch26.addConstraint(Sketcher.Constraint("DistanceY", 0, 2, 0, 1, Q("4.963842 mm")))
pocket14 = body.newObject("PartDesign::Pocket", "Pocket013")
pocket14.Profile = sketch26
pocket14.Length = 0.5
pocket14.Reversed = True

sketch27 = body.newObject("Sketcher::SketchObject", "Sketch026")
sketch27.AttachmentSupport = (doc.getObject("XY_Plane"), [""])
sketch27.MapMode = "FlatFace"
sketch27.AttachmentOffset = App.Placement(Vector(0, 0, -9), App.Rotation())
add_polygon(sketch27, [(275, 19.942443), (275, 8), (295, 8), (295, 19.942443)])
sketch27.addConstraint(Sketcher.Constraint("Vertical", 0))
sketch27.addConstraint(Sketcher.Constraint("Horizontal", 1))
sketch27.addConstraint(Sketcher.Constraint("Vertical", 2))
sketch27.addConstraint(Sketcher.Constraint("Horizontal", 3))
sketch27.addConstraint(Sketcher.Constraint("DistanceX", 1, 1, 1, 2, Q("20 mm")))
sketch27.addConstraint(Sketcher.Constraint("DistanceX", -1, 1, 0, 2, Q("275 mm")))
sketch27.addConstraint(Sketcher.Constraint("DistanceY", -1, 1, 0, 2, Q("8 mm")))
sketch27.addConstraint(Sketcher.Constraint("DistanceY", 0, 2, 0, 1, Q("11.942443 mm")))
pocket15 = body.newObject("PartDesign::Pocket", "Pocket014")
pocket15.Profile = sketch27
pocket15.Length = 0.5

doc.recompute()
